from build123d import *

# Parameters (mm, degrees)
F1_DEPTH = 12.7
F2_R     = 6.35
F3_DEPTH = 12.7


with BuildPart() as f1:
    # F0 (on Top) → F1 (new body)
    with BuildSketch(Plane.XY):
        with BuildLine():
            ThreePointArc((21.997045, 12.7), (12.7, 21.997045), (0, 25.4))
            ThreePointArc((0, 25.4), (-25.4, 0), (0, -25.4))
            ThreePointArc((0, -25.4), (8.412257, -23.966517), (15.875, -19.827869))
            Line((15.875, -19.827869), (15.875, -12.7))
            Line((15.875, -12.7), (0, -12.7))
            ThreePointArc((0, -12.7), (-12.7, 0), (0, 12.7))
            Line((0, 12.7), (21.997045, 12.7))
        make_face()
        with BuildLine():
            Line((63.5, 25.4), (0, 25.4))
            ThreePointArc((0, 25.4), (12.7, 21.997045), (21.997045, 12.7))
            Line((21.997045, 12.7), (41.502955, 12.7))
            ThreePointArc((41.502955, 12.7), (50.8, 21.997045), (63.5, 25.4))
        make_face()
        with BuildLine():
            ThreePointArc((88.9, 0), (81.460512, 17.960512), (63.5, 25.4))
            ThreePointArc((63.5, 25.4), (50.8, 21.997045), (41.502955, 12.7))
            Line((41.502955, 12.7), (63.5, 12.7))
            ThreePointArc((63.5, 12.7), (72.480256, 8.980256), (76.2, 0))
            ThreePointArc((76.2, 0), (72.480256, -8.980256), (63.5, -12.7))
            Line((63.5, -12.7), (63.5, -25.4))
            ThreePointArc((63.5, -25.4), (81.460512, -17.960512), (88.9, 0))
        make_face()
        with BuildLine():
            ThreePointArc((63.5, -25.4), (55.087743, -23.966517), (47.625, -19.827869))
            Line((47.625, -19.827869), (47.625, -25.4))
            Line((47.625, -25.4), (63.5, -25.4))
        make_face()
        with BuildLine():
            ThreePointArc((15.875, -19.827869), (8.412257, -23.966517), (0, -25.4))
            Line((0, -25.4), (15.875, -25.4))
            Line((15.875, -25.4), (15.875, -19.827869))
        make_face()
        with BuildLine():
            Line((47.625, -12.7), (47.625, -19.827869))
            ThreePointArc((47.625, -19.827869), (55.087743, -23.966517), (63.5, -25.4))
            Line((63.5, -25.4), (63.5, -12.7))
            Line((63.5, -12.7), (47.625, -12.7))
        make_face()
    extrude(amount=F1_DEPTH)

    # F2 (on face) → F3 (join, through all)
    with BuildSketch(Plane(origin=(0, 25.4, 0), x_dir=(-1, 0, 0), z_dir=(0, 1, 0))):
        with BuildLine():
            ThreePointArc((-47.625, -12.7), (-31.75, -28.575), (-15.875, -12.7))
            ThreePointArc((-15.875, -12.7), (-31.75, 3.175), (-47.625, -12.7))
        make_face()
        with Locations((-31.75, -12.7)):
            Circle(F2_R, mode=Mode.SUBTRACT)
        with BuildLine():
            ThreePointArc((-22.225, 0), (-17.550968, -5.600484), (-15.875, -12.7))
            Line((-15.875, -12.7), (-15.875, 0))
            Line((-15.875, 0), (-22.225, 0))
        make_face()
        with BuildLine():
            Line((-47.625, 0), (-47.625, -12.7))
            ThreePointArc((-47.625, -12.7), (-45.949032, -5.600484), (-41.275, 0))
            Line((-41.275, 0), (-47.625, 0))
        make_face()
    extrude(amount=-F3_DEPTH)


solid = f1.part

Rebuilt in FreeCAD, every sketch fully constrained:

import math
import FreeCAD as App
import Part
import Sketcher

V = App.Vector
Q = App.Units.Quantity

doc = App.newDocument("Part")
body = doc.addObject("PartDesign::Body", "Body")

# Sketch on XY plane
sketch1 = body.newObject("Sketcher::SketchObject", "Sketch")
sketch1.AttachmentSupport = (doc.getObject("XY_Plane"), [""])
sketch1.MapMode = "FlatFace"
sketch1.addGeometry(Part.ArcOfCircle(Part.Circle(V(0, 0, 0), V(0, 0, 1), 25), math.radians(90), math.radians(270)), False)
sketch1.addGeometry(Part.LineSegment(V(0, -25, 0), V(16, -25, 0)), False)
sketch1.addGeometry(Part.LineSegment(V(16, -25, 0), V(16, -13, 0)), False)
sketch1.addGeometry(Part.LineSegment(V(16, -13, 0), V(0, -13, 0)), False)
sketch1.addGeometry(Part.ArcOfCircle(Part.Circle(V(0, 0, 0), V(0, 0, 1), 13), math.radians(90), math.radians(270)), False)
sketch1.addGeometry(Part.LineSegment(V(0, 13, 0), V(64, 13, 0)), False)
sketch1.addGeometry(Part.ArcOfCircle(Part.Circle(V(63, 0, 0), V(0, 0, 1), 13), math.radians(0), math.radians(90)), False)
sketch1.addGeometry(Part.ArcOfCircle(Part.Circle(V(63, 0, 0), V(0, 0, 1), 13), math.radians(-90), math.radians(0)), False)
sketch1.addGeometry(Part.LineSegment(V(64, -13, 0), V(48, -13, 0)), False)
sketch1.addGeometry(Part.LineSegment(V(48, -13, 0), V(48, -25, 0)), False)
sketch1.addGeometry(Part.LineSegment(V(48, -25, 0), V(64, -25, 0)), False)
sketch1.addGeometry(Part.ArcOfCircle(Part.Circle(V(63, 0, 0), V(0, 0, 1), 25), math.radians(-90), math.radians(0)), False)
sketch1.addGeometry(Part.ArcOfCircle(Part.Circle(V(63, 0, 0), V(0, 0, 1), 25), math.radians(0), math.radians(90)), False)
sketch1.addGeometry(Part.LineSegment(V(64, 25, 0), V(0, 25, 0)), False)
sketch1.addConstraint(Sketcher.Constraint("Tangent", 0, 2, 1, 1))
sketch1.addConstraint(Sketcher.Constraint("Coincident", 1, 2, 2, 1))
sketch1.addConstraint(Sketcher.Constraint("Coincident", 2, 2, 3, 1))
sketch1.addConstraint(Sketcher.Constraint("Tangent", 3, 2, 4, 2))
sketch1.addConstraint(Sketcher.Constraint("Tangent", 4, 1, 5, 1))
sketch1.addConstraint(Sketcher.Constraint("Tangent", 5, 2, 6, 2))
sketch1.addConstraint(Sketcher.Constraint("Tangent", 6, 1, 7, 2))
sketch1.addConstraint(Sketcher.Constraint("Tangent", 7, 1, 8, 1))
sketch1.addConstraint(Sketcher.Constraint("Coincident", 8, 2, 9, 1))
sketch1.addConstraint(Sketcher.Constraint("Coincident", 9, 2, 10, 1))
sketch1.addConstraint(Sketcher.Constraint("Tangent", 10, 2, 11, 1))
sketch1.addConstraint(Sketcher.Constraint("Tangent", 11, 2, 12, 1))
sketch1.addConstraint(Sketcher.Constraint("Tangent", 12, 2, 13, 1))
sketch1.addConstraint(Sketcher.Constraint("Tangent", 13, 2, 0, 1))
sketch1.addConstraint(Sketcher.Constraint("Horizontal", 1))
sketch1.addConstraint(Sketcher.Constraint("Vertical", 2))
sketch1.addConstraint(Sketcher.Constraint("Horizontal", 3))
sketch1.addConstraint(Sketcher.Constraint("Horizontal", 5))
sketch1.addConstraint(Sketcher.Constraint("Horizontal", 8))
sketch1.addConstraint(Sketcher.Constraint("Vertical", 9))
sketch1.addConstraint(Sketcher.Constraint("Horizontal", 10))
sketch1.addConstraint(Sketcher.Constraint("Horizontal", 13))
sketch1.addConstraint(Sketcher.Constraint("Coincident", 0, 3, -1, 1))
sketch1.addConstraint(Sketcher.Constraint("Coincident", 4, 3, -1, 1))
sketch1.addConstraint(Sketcher.Constraint("Coincident", 11, 3, 6, 3))
sketch1.addConstraint(Sketcher.Constraint("Equal", 4, 6))
sketch1.addConstraint(Sketcher.Constraint("Equal", 6, 7))
sketch1.addConstraint(Sketcher.Constraint("Equal", 0, 11))
sketch1.addConstraint(Sketcher.Constraint("PointOnObject", 6, 1, -1))
sketch1.addConstraint(Sketcher.Constraint("PointOnObject", 11, 2, -1))
sketch1.addConstraint(Sketcher.Constraint("Equal", 3, 8))
sketch1.addConstraint(Sketcher.Constraint("Radius", 0, Q("1 in")))
sketch1.addConstraint(Sketcher.Constraint("Radius", 4, Q("0.5 in")))
sketch1.addConstraint(Sketcher.Constraint("DistanceX", 5, 1, 5, 2, Q("2.5 in")))
sketch1.addConstraint(Sketcher.Constraint("DistanceX", 1, 1, 1, 2, Q("0.625 in")))
pad1 = body.newObject("PartDesign::Pad", "Pad")
pad1.Profile = sketch1
pad1.Length = Q("0.5 in")

# Sketch on XZ plane
sketch2 = body.newObject("Sketcher::SketchObject", "Sketch001")
sketch2.AttachmentSupport = (doc.getObject("XZ_Plane"), [""])
sketch2.MapMode = "FlatFace"
sketch2.AttachmentOffset = App.Placement(V(0, 0, -1 * 25.4), App.Rotation())
sketch2.addGeometry(Part.ArcOfCircle(Part.Circle(V(32, -13, 0), V(0, 0, 1), 16), math.radians(53), math.radians(127)), False)
sketch2.addGeometry(Part.LineSegment(V(41, 0, 0), V(48, 0, 0)), False)
sketch2.addGeometry(Part.LineSegment(V(48, 0, 0), V(48, -13, 0)), False)
sketch2.addGeometry(Part.ArcOfCircle(Part.Circle(V(32, -13, 0), V(0, 0, 1), 16), math.radians(180), math.radians(360)), False)
sketch2.addGeometry(Part.LineSegment(V(16, -13, 0), V(16, 0, 0)), False)
sketch2.addGeometry(Part.LineSegment(V(16, 0, 0), V(22, 0, 0)), False)
sketch2.addGeometry(Part.Circle(V(32, -13, 0), V(0, 0, 1), 6), False)
sketch2.addConstraint(Sketcher.Constraint("Coincident", 0, 1, 1, 1))
sketch2.addConstraint(Sketcher.Constraint("Coincident", 1, 2, 2, 1))
sketch2.addConstraint(Sketcher.Constraint("Tangent", 2, 2, 3, 2))
sketch2.addConstraint(Sketcher.Constraint("Tangent", 3, 1, 4, 1))
sketch2.addConstraint(Sketcher.Constraint("Coincident", 4, 2, 5, 1))
sketch2.addConstraint(Sketcher.Constraint("Coincident", 5, 2, 0, 2))
sketch2.addConstraint(Sketcher.Constraint("Horizontal", 1))
sketch2.addConstraint(Sketcher.Constraint("Vertical", 2))
sketch2.addConstraint(Sketcher.Constraint("Vertical", 4))
sketch2.addConstraint(Sketcher.Constraint("Horizontal", 5))
sketch2.addConstraint(Sketcher.Constraint("Coincident", 3, 3, 0, 3))
sketch2.addConstraint(Sketcher.Constraint("Coincident", 6, 3, 0, 3))
sketch2.addConstraint(Sketcher.Constraint("Equal", 0, 3))
sketch2.addConstraint(Sketcher.Constraint("PointOnObject", 0, 1, -1))
sketch2.addConstraint(Sketcher.Constraint("PointOnObject", 4, 2, -1))
sketch2.addConstraint(Sketcher.Constraint("Diameter", 6, Q("0.5 in")))
sketch2.addConstraint(Sketcher.Constraint("DistanceY", 2, 2, 2, 1, Q("0.5 in")))
sketch2.addConstraint(Sketcher.Constraint("Radius", 0, Q("0.625 in")))
sketch2.addConstraint(Sketcher.Constraint("DistanceX", -1, 1, 0, 3, Q("1.25 in")))
pad2 = body.newObject("PartDesign::Pad", "Pad001")
pad2.Profile = sketch2
pad2.Length = Q("0.5 in")

doc.recompute()
